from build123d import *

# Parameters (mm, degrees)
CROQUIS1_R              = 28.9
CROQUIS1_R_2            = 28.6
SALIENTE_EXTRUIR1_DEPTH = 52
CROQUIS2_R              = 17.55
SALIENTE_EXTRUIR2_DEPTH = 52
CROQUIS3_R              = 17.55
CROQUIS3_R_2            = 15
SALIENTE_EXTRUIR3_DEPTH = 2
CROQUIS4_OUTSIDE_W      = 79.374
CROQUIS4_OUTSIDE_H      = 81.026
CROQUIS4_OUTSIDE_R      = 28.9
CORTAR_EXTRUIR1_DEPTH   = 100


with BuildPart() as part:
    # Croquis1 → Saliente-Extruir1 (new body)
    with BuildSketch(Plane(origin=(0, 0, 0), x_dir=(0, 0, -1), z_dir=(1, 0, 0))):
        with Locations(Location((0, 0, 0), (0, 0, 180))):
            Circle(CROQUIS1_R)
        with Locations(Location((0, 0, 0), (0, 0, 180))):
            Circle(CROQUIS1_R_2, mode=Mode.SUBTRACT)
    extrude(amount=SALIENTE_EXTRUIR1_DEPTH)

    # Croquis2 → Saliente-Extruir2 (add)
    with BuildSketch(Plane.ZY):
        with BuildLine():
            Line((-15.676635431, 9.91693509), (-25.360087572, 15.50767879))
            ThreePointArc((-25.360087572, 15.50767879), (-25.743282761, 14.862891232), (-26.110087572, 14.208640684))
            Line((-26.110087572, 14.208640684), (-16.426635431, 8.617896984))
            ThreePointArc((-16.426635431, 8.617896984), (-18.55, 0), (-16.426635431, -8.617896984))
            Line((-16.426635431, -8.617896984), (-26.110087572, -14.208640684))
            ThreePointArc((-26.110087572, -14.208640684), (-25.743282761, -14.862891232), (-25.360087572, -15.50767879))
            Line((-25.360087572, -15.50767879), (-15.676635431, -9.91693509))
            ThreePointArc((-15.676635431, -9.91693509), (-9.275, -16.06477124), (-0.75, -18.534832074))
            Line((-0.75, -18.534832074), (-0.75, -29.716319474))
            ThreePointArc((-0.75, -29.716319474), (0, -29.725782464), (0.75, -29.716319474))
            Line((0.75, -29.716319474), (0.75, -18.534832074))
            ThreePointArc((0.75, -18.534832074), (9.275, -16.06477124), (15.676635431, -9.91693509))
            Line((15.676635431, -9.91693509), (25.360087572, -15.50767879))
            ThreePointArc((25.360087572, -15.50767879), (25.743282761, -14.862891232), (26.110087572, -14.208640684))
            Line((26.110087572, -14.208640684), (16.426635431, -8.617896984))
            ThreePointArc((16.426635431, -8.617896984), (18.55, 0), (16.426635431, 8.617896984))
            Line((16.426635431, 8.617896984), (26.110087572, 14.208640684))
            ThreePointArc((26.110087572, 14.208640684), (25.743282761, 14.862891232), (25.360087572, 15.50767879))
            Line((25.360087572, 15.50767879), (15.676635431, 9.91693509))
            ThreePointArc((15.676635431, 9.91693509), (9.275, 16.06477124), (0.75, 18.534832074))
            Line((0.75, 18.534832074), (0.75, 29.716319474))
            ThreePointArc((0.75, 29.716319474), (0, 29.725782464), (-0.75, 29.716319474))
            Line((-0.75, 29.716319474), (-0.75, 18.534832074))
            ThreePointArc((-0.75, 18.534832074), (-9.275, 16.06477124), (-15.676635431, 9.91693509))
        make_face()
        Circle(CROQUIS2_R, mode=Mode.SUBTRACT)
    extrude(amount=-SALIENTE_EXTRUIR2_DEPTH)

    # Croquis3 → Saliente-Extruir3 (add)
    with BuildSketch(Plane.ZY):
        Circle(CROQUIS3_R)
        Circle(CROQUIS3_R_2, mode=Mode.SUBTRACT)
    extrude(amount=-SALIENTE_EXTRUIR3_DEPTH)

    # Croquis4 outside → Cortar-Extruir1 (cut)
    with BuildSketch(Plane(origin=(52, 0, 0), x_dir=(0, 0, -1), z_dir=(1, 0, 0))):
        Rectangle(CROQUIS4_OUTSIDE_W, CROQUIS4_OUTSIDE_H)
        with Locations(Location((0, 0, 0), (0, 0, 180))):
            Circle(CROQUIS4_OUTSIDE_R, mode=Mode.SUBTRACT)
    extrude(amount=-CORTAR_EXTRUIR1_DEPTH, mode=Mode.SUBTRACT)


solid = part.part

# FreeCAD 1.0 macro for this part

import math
import FreeCAD as App
import Part
import Sketcher
Q = App.Units.Quantity


def add_polygon(sketch, points):
    """Adds a closed chain of lines whose ends are joined by coincident constraints."""
    first, n = sketch.GeometryCount, len(points)
    for a, b in zip(points, points[1:] + points[:1]):
        sketch.addGeometry(Part.LineSegment(App.Vector(*a, 0), App.Vector(*b, 0)), False)
    for i in range(n):
        sketch.addConstraint(Sketcher.Constraint("Coincident", first + i, 2, first + (i + 1) % n, 1))

doc = App.newDocument("Part")
body = doc.addObject("PartDesign::Body", "Body")

sketch1 = doc.addObject("Sketcher::SketchObject", "Sketch")
body.addObject(sketch1)
sketch1.AttachmentSupport = (doc.YZ_Plane, [""])
sketch1.MapMode = "FlatFace"
sketch1.addGeometry([
    Part.Circle(App.Vector(0, 0, 0), App.Vector(0, 0, 1), 28.9),
    Part.Circle(App.Vector(0, 0, 0), App.Vector(0, 0, 1), 28.6),
], False)
sketch1.addConstraint([
    Sketcher.Constraint("Coincident", 0, 3, -1, 1),
    Sketcher.Constraint("Coincident", 1, 3, -1, 1),
    Sketcher.Constraint("Diameter", 0, Q("57.8 mm")),
    Sketcher.Constraint("Diameter", 1, Q("57.2 mm")),
])
pad1 = doc.addObject("PartDesign::Pad", "Pad")
body.addObject(pad1)
pad1.Profile = sketch1
pad1.Length = 52

sketch2 = doc.addObject("Sketcher::SketchObject", "Sketch001")
body.addObject(sketch2)
sketch2.AttachmentSupport = (doc.YZ_Plane, [""])
sketch2.MapMode = "FlatFace"
sketch2.addGeometry([
    Part.LineSegment(App.Vector(9.916935, -15.676635, 0), App.Vector(15.507679, -25.360088, 0)),
    Part.ArcOfCircle(Part.Circle(App.Vector(-0.000001, 0.000001, 0), App.Vector(0, 0, 1), 29.725784), math.radians(-61.445762), math.radians(-58.554238)),
    Part.LineSegment(App.Vector(14.208641, -26.110088, 0), App.Vector(8.617897, -16.426635, 0)),
    Part.ArcOfCircle(Part.Circle(App.Vector(0, 0, 0), App.Vector(0, 0, 1), 18.55), math.radians(-117.682827), math.radians(-62.317173)),
    Part.LineSegment(App.Vector(-8.617897, -16.426635, 0), App.Vector(-14.208641, -26.110088, 0)),
    Part.ArcOfCircle(Part.Circle(App.Vector(0.000001, 0.000001, 0), App.Vector(0, 0, 1), 29.725784), math.radians(-121.445762), math.radians(-118.554238)),
    Part.LineSegment(App.Vector(-15.507679, -25.360088, 0), App.Vector(-9.916935, -15.676635, 0)),
    Part.ArcOfCircle(Part.Circle(App.Vector(0, 0, 0), App.Vector(0, 0, 1), 18.55), math.radians(-177.682827), math.radians(-122.317173)),
    Part.LineSegment(App.Vector(-18.534832, -0.75, 0), App.Vector(-29.716319, -0.75, 0)),
    Part.ArcOfCircle(Part.Circle(App.Vector(-0.000001, 0, 0), App.Vector(0, 0, 1), 29.725782), math.radians(178.554238), math.radians(181.445762)),
    Part.LineSegment(App.Vector(-29.716319, 0.75, 0), App.Vector(-18.534832, 0.75, 0)),
    Part.ArcOfCircle(Part.Circle(App.Vector(0, 0, 0), App.Vector(0, 0, 1), 18.55), math.radians(122.317173), math.radians(177.682827)),
    Part.LineSegment(App.Vector(-9.916935, 15.676635, 0), App.Vector(-15.507679, 25.360088, 0)),
    Part.ArcOfCircle(Part.Circle(App.Vector(0.000001, -0.000001, 0), App.Vector(0, 0, 1), 29.725784), math.radians(118.554238), math.radians(121.445762)),
    Part.LineSegment(App.Vector(-14.208641, 26.110088, 0), App.Vector(-8.617897, 16.426635, 0)),
    Part.ArcOfCircle(Part.Circle(App.Vector(0, 0, 0), App.Vector(0, 0, 1), 18.55), math.radians(62.317173), math.radians(117.682827)),
    Part.LineSegment(App.Vector(8.617897, 16.426635, 0), App.Vector(14.208641, 26.110088, 0)),
    Part.ArcOfCircle(Part.Circle(App.Vector(-0.000001, -0.000001, 0), App.Vector(0, 0, 1), 29.725784), math.radians(58.554238), math.radians(61.445762)),
    Part.LineSegment(App.Vector(15.507679, 25.360088, 0), App.Vector(9.916935, 15.676635, 0)),
    Part.ArcOfCircle(Part.Circle(App.Vector(0, 0, 0), App.Vector(0, 0, 1), 18.55), math.radians(2.317173), math.radians(57.682827)),
    Part.LineSegment(App.Vector(18.534832, 0.75, 0), App.Vector(29.716319, 0.75, 0)),
    Part.ArcOfCircle(Part.Circle(App.Vector(0.000001, 0, 0), App.Vector(0, 0, 1), 29.725782), math.radians(-1.445762), math.radians(1.445762)),
    Part.LineSegment(App.Vector(29.716319, -0.75, 0), App.Vector(18.534832, -0.75, 0)),
    Part.ArcOfCircle(Part.Circle(App.Vector(0, 0, 0), App.Vector(0, 0, 1), 18.55), math.radians(-57.682827), math.radians(-2.317173)),
    Part.Circle(App.Vector(0, 0, 0), App.Vector(0, 0, 1), 17.55),
], False)
sketch2.addConstraint([
    Sketcher.Constraint("Coincident", 0, 2, 1, 2),
    Sketcher.Constraint("Coincident", 1, 1, 2, 1),
    Sketcher.Constraint("Coincident", 2, 2, 3, 2),
    Sketcher.Constraint("Coincident", 3, 1, 4, 1),
    Sketcher.Constraint("Coincident", 4, 2, 5, 2),
    Sketcher.Constraint("Coincident", 5, 1, 6, 1),
    Sketcher.Constraint("Coincident", 6, 2, 7, 2),
    Sketcher.Constraint("Coincident", 7, 1, 8, 1),
    Sketcher.Constraint("Coincident", 8, 2, 9, 2),
    Sketcher.Constraint("Coincident", 9, 1, 10, 1),
    Sketcher.Constraint("Coincident", 10, 2, 11, 2),
    Sketcher.Constraint("Coincident", 11, 1, 12, 1),
    Sketcher.Constraint("Coincident", 12, 2, 13, 2),
    Sketcher.Constraint("Coincident", 13, 1, 14, 1),
    Sketcher.Constraint("Coincident", 14, 2, 15, 2),
    Sketcher.Constraint("Coincident", 15, 1, 16, 1),
    Sketcher.Constraint("Coincident", 16, 2, 17, 2),
    Sketcher.Constraint("Coincident", 17, 1, 18, 1),
    Sketcher.Constraint("Coincident", 18, 2, 19, 2),
    Sketcher.Constraint("Coincident", 19, 1, 20, 1),
    Sketcher.Constraint("Coincident", 20, 2, 21, 2),
    Sketcher.Constraint("Coincident", 21, 1, 22, 1),
    Sketcher.Constraint("Coincident", 22, 2, 23, 2),
    Sketcher.Constraint("Coincident", 23, 1, 0, 1),
    Sketcher.Constraint("Horizontal", 8),
    Sketcher.Constraint("Horizontal", 10),
    Sketcher.Constraint("Horizontal", 20),
    Sketcher.Constraint("Horizontal", 22),
    Sketcher.Constraint("Coincident", 1, 3, -1, 1),
    Sketcher.Constraint("Coincident", 3, 3, -1, 1),
    Sketcher.Constraint("Coincident", 5, 3, -1, 1),
    Sketcher.Constraint("Coincident", 7, 3, -1, 1),
    Sketcher.Constraint("Coincident", 9, 3, -1, 1),
    Sketcher.Constraint("Coincident", 11, 3, -1, 1),
    Sketcher.Constraint("Coincident", 13, 3, -1, 1),
    Sketcher.Constraint("Coincident", 15, 3, -1, 1),
    Sketcher.Constraint("Coincident", 17, 3, -1, 1),
    Sketcher.Constraint("Coincident", 19, 3, -1, 1),
    Sketcher.Constraint("Coincident", 21, 3, -1, 1),
    Sketcher.Constraint("Coincident", 23, 3, -1, 1),
    Sketcher.Constraint("Coincident", 24, 3, -1, 1),
    Sketcher.Constraint("Equal", 1, 5),
    Sketcher.Constraint("Equal", 3, 7),
    Sketcher.Constraint("Equal", 7, 11),
    Sketcher.Constraint("Equal", 5, 13),
    Sketcher.Constraint("Equal", 11, 15),
    Sketcher.Constraint("Equal", 13, 17),
    Sketcher.Constraint("Equal", 15, 19),
    Sketcher.Constraint("Equal", 9, 21),
    Sketcher.Constraint("Equal", 19, 23),
    Sketcher.Constraint("Parallel", 0, 2),
    Sketcher.Constraint("Parallel", 4, 6),
    Sketcher.Constraint("Parallel", 2, 12),
    Sketcher.Constraint("Parallel", 12, 14),
    Sketcher.Constraint("Parallel", 6, 16),
    Sketcher.Constraint("Parallel", 16, 18),
    Sketcher.Constraint("Horizontal", 2, 2, 3, 1),
    Sketcher.Constraint("Horizontal", 1, 1, 4, 2),
    Sketcher.Constraint("Horizontal", 0, 2, 5, 1),
    Sketcher.Constraint("Horizontal", 14, 2, 15, 1),
    Sketcher.Constraint("Horizontal", 12, 2, 17, 1),
    Sketcher.Constraint("Horizontal", 10, 2, 19, 1),
    Sketcher.Constraint("Horizontal", 8, 2, 21, 1),
    Sketcher.Constraint("Vertical", 8, 2, 9, 1),
    Sketcher.Constraint("Vertical", 6, 2, 11, 1),
    Sketcher.Constraint("Vertical", 4, 2, 13, 1),
    Sketcher.Constraint("Equal", 0, 2),
    Sketcher.Constraint("Diameter", 24, Q("35.1 mm")),
    Sketcher.Constraint("Angle", 0, Q("-60 deg")),
    Sketcher.Constraint("Radius", 3, Q("18.55 mm")),
    Sketcher.Constraint("DistanceY", 8, 2, 9, 1, Q("1.5 mm")),
    Sketcher.Constraint("Radius", 9, Q("29.725782 mm")),
    Sketcher.Constraint("DistanceY", 1, 1, 0, 2, Q("0.75 mm")),
    Sketcher.Constraint("Radius", 1, Q("29.725784 mm")),
])
pad2 = doc.addObject("PartDesign::Pad", "Pad001")
body.addObject(pad2)
pad2.Profile = sketch2
pad2.Length = 52

sketch3 = doc.addObject("Sketcher::SketchObject", "Sketch002")
body.addObject(sketch3)
sketch3.AttachmentSupport = (doc.YZ_Plane, [""])
sketch3.MapMode = "FlatFace"
sketch3.addGeometry([
    Part.Circle(App.Vector(0, 0, 0), App.Vector(0, 0, 1), 17.55),
    Part.Circle(App.Vector(0, 0, 0), App.Vector(0, 0, 1), 15),
], False)
sketch3.addConstraint([
    Sketcher.Constraint("Coincident", 0, 3, -1, 1),
    Sketcher.Constraint("Coincident", 1, 3, -1, 1),
    Sketcher.Constraint("Diameter", 1, Q("30 mm")),
    Sketcher.Constraint("Diameter", 0, Q("35.1 mm")),
])
pad3 = doc.addObject("PartDesign::Pad", "Pad002")
body.addObject(pad3)
pad3.Profile = sketch3
pad3.Length = 2

sketch4 = doc.addObject("Sketcher::SketchObject", "Sketch003")
body.addObject(sketch4)
sketch4.AttachmentSupport = (doc.YZ_Plane, [""])
sketch4.MapMode = "FlatFace"
sketch4.AttachmentOffset = App.Placement(App.Vector(0, 0, 52), App.Rotation())
add_polygon(sketch4, [(40.513, 39.687), (-40.513, 39.687), (-40.513, -39.687), (40.513, -39.687)])
sketch4.addGeometry(Part.Circle(App.Vector(0, 0, 0), App.Vector(0, 0, 1), 28.9), False)
sketch4.addConstraint([
    Sketcher.Constraint("Horizontal", 0),
    Sketcher.Constraint("Vertical", 1),
    Sketcher.Constraint("Horizontal", 2),
    Sketcher.Constraint("Vertical", 3),
    Sketcher.Constraint("Coincident", 4, 3, -1, 1),
    Sketcher.Constraint("Symmetric", 0, 2, 2, 2, -1, 1),
    Sketcher.Constraint("Diameter", 4, Q("57.8 mm")),
    Sketcher.Constraint("DistanceX", 0, 2, 0, 1, Q("81.026 mm")),
    Sketcher.Constraint("DistanceY", 1, 2, 1, 1, Q("79.374 mm")),
])
pocket1 = doc.addObject("PartDesign::Pocket", "Pocket")
body.addObject(pocket1)
pocket1.Profile = sketch4
pocket1.Length = 100

doc.recompute()
